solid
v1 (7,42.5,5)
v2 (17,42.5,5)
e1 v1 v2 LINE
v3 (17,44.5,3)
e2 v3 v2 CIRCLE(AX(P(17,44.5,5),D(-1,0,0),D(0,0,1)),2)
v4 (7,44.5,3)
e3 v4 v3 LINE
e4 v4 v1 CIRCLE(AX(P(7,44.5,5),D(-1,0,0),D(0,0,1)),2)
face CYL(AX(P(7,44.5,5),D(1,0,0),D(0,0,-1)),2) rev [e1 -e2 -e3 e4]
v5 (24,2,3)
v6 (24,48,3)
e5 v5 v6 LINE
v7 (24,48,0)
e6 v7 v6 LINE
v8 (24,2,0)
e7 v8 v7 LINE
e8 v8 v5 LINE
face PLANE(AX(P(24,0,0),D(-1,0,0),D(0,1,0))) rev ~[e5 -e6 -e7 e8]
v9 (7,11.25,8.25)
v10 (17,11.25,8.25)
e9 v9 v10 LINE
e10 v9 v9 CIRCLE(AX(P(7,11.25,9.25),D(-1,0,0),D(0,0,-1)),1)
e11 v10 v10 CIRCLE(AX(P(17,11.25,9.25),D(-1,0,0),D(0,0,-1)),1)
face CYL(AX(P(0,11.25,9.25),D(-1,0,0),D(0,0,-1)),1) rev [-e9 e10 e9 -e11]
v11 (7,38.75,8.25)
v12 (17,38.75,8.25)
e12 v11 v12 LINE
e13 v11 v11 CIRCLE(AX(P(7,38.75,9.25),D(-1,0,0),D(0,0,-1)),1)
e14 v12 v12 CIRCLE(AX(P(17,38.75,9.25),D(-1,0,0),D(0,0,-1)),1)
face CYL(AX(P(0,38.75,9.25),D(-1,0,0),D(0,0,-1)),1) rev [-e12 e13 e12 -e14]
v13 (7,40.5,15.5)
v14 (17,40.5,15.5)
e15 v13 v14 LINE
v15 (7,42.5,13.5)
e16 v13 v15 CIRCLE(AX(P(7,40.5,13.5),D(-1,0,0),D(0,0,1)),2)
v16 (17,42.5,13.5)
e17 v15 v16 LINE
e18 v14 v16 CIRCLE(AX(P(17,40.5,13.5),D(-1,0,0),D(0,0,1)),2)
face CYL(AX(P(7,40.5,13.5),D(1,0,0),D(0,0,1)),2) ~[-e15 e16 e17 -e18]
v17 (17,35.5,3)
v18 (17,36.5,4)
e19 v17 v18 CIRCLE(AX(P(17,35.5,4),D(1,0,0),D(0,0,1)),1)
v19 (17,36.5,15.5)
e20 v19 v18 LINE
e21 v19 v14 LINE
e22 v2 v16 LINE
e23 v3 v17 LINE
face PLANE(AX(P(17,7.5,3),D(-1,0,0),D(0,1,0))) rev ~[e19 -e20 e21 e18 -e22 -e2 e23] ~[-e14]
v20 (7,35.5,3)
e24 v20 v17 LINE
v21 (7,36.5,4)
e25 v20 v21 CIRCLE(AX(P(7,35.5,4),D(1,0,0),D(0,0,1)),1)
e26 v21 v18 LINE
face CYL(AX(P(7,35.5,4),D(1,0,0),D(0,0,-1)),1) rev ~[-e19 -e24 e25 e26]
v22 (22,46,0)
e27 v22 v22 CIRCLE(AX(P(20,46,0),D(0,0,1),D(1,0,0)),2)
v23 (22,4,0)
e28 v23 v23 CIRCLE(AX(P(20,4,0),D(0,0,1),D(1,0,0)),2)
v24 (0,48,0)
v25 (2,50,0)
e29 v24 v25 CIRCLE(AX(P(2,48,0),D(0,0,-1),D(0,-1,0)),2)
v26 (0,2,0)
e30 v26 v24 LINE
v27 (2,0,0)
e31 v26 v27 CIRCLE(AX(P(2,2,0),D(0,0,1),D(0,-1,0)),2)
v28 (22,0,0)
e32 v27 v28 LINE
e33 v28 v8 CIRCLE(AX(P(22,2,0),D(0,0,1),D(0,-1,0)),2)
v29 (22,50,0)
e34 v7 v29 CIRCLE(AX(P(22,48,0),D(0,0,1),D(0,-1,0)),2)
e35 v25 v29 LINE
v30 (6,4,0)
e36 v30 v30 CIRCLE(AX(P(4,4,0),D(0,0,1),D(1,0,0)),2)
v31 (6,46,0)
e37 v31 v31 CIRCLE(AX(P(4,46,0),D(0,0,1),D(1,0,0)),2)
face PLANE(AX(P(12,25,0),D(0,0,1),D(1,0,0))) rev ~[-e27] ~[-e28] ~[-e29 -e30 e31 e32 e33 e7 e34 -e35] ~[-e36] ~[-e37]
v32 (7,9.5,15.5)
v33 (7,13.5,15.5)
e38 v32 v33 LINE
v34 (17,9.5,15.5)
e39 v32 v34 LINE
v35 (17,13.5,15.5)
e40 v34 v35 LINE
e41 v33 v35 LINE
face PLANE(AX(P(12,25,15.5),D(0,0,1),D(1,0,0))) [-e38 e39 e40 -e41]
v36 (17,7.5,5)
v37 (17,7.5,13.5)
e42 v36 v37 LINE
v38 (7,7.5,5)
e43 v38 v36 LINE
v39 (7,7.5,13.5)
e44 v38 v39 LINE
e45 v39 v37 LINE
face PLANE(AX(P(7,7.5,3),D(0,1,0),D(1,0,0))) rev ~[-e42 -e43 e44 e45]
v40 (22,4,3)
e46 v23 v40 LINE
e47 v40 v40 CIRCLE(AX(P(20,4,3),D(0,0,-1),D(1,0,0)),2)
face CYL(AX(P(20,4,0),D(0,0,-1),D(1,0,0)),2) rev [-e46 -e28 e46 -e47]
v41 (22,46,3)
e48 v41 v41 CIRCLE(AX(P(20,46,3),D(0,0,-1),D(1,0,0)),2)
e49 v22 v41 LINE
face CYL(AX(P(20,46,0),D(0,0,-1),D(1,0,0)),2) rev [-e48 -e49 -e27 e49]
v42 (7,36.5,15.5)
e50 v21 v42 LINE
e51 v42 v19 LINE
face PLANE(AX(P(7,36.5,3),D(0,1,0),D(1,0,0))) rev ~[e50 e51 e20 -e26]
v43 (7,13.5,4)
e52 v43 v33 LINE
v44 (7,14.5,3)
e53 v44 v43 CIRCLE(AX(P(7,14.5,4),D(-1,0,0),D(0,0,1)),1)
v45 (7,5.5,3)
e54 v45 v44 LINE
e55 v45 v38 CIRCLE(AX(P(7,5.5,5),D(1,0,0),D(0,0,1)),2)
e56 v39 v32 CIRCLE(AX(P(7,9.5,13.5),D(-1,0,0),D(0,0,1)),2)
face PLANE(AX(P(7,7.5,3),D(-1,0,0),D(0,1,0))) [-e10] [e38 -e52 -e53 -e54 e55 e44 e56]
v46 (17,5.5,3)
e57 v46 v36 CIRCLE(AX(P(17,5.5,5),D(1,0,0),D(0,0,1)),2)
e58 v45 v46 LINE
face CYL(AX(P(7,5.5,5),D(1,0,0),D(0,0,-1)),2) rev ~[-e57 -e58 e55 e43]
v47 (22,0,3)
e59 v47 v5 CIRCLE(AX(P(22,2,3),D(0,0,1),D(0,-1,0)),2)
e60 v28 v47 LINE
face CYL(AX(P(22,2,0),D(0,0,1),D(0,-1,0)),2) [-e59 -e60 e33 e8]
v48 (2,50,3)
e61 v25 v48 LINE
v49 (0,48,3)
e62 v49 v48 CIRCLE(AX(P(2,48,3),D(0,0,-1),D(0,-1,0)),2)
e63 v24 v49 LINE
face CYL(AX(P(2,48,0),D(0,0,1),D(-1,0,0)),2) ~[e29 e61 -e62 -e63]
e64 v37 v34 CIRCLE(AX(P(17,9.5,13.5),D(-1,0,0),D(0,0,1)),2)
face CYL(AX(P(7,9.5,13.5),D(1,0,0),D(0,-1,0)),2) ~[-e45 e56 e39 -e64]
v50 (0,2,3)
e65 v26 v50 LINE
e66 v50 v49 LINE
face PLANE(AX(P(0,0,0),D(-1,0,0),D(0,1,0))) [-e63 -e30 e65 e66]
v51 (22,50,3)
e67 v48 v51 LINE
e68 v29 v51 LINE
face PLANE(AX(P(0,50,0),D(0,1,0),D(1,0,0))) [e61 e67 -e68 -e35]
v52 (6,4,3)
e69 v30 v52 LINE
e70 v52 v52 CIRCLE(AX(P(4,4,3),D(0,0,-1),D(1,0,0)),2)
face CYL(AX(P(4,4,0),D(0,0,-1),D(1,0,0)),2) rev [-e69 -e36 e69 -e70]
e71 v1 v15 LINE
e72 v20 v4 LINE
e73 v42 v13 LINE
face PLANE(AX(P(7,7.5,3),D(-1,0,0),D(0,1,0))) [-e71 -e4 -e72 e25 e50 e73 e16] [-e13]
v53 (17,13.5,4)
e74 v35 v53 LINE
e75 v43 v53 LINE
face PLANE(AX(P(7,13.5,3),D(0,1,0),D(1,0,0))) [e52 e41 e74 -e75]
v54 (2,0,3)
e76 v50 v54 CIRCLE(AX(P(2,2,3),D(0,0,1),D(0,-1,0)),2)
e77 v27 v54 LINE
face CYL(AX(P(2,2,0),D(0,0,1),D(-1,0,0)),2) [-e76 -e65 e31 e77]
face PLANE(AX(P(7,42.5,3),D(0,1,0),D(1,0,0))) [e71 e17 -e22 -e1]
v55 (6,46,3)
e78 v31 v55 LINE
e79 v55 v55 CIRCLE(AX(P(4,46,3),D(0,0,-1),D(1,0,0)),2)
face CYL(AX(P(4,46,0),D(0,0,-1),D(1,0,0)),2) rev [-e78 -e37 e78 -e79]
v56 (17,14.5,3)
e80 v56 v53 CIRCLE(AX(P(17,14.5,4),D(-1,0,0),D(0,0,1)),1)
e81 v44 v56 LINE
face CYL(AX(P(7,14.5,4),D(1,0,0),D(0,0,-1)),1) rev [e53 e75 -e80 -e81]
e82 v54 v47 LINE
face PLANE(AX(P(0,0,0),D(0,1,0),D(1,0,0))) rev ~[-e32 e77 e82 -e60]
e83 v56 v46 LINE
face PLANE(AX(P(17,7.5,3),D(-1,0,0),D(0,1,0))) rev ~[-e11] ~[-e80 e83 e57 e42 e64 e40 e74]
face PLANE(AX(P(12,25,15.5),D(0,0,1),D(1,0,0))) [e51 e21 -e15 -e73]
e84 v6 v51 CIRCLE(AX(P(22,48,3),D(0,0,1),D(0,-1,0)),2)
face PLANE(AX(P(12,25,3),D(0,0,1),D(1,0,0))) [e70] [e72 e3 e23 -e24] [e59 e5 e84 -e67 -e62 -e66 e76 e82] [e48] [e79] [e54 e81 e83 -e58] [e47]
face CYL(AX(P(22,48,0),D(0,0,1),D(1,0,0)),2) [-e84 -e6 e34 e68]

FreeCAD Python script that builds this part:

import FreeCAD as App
import Part
import Sketcher
from FreeCAD import Vector


def edges_at(feature, points):
    """Names of the edges that pass closest to the given points."""
    edges = feature.Shape.Edges
    near = lambda p: min(range(len(edges)), key=lambda i: edges[i].distToShape(Part.Vertex(*p))[0])
    return sorted({f"Edge{near(p) + 1}" for p in points})

doc = App.newDocument("Part")
body = doc.addObject("PartDesign::Body", "Body")

sketch1 = body.newObject("Sketcher::SketchObject", "Sketch")
sketch1.AttachmentSupport = (doc.getObject("YZ_Plane"), [""])
sketch1.MapMode = "FlatFace"
sketch1.addGeometry(Part.Circle(Vector(11.2, 9.2, 0), Vector(0, 0, 1), 1), False)
sketch1.addConstraint(Sketcher.Constraint("Diameter", 0, 2.0))
sketch1.addConstraint(Sketcher.Constraint("DistanceX", -1, 1, 0, 3, 11.25))
sketch1.addConstraint(Sketcher.Constraint("DistanceY", -1, 1, 0, 3, 9.25))
pad1 = body.newObject("PartDesign::Pad", "Pad")
pad1.Profile = sketch1
pad1.Length = 28
body2 = doc.addObject("PartDesign::Body", "Body001")

sketch2 = body2.newObject("Sketcher::SketchObject", "Sketch001")
sketch2.AttachmentSupport = (doc.getObject("XY_Plane001"), [""])
sketch2.MapMode = "FlatFace"
sketch2.addGeometry(Part.Circle(Vector(20, 4, 0), Vector(0, 0, 1), 2), False)
sketch2.addConstraint(Sketcher.Constraint("Diameter", 0, 4.0))
sketch2.addConstraint(Sketcher.Constraint("DistanceX", -1, 1, 0, 3, 20.0))
sketch2.addConstraint(Sketcher.Constraint("DistanceY", -1, 1, 0, 3, 4.0))
pad2 = body2.newObject("PartDesign::Pad", "Pad001")
pad2.Profile = sketch2
pad2.Length = 10
body3 = doc.addObject("PartDesign::Body", "Body002")

sketch3 = body3.newObject("Sketcher::SketchObject", "Sketch002")
sketch3.AttachmentSupport = (doc.getObject("XY_Plane002"), [""])
sketch3.MapMode = "FlatFace"
sketch3.addGeometry(Part.Circle(Vector(20, 46, 0), Vector(0, 0, 1), 2), False)
sketch3.addConstraint(Sketcher.Constraint("Diameter", 0, 4.0))
sketch3.addConstraint(Sketcher.Constraint("DistanceX", -1, 1, 0, 3, 20.0))
sketch3.addConstraint(Sketcher.Constraint("DistanceY", -1, 1, 0, 3, 46.0))
pad3 = body3.newObject("PartDesign::Pad", "Pad002")
pad3.Profile = sketch3
pad3.Length = 10
body4 = doc.addObject("PartDesign::Body", "Body003")

sketch4 = body4.newObject("Sketcher::SketchObject", "Sketch003")
sketch4.AttachmentSupport = (doc.getObject("XY_Plane003"), [""])
sketch4.MapMode = "FlatFace"
sketch4.addGeometry(Part.Circle(Vector(4, 46, 0), Vector(0, 0, 1), 2), False)
sketch4.addConstraint(Sketcher.Constraint("Diameter", 0, 4.0))
sketch4.addConstraint(Sketcher.Constraint("DistanceX", -1, 1, 0, 3, 4.0))
sketch4.addConstraint(Sketcher.Constraint("DistanceY", -1, 1, 0, 3, 46.0))
pad4 = body4.newObject("PartDesign::Pad", "Pad003")
pad4.Profile = sketch4
pad4.Length = 10
body5 = doc.addObject("PartDesign::Body", "Body004")

sketch5 = body5.newObject("Sketcher::SketchObject", "Sketch004")
sketch5.AttachmentSupport = (doc.getObject("YZ_Plane004"), [""])
sketch5.MapMode = "FlatFace"
sketch5.addGeometry(Part.Circle(Vector(38.8, 9.2, 0), Vector(0, 0, 1), 1), False)
sketch5.addConstraint(Sketcher.Constraint("Diameter", 0, 2.0))
sketch5.addConstraint(Sketcher.Constraint("DistanceX", -1, 1, 0, 3, 38.75))
sketch5.addConstraint(Sketcher.Constraint("DistanceY", -1, 1, 0, 3, 9.25))
pad5 = body5.newObject("PartDesign::Pad", "Pad004")
pad5.Profile = sketch5
pad5.Length = 28
body6 = doc.addObject("PartDesign::Body", "Body005")
body6.AllowCompound = True

sketch6 = body6.newObject("Sketcher::SketchObject", "Sketch005")
sketch6.AttachmentSupport = (doc.getObject("XY_Plane005"), [""])
sketch6.MapMode = "FlatFace"
sketch6.addGeometry(Part.Circle(Vector(4, 4, 0), Vector(0, 0, 1), 2), False)
sketch6.addConstraint(Sketcher.Constraint("Diameter", 0, 4.0))
sketch6.addConstraint(Sketcher.Constraint("DistanceX", -1, 1, 0, 3, 4.0))
sketch6.addConstraint(Sketcher.Constraint("DistanceY", -1, 1, 0, 3, 4.0))
pad6 = body6.newObject("PartDesign::Pad", "Pad005")
pad6.Profile = sketch6
pad6.Length = 10
doc.recompute()

boolean = body6.newObject("PartDesign::Boolean", "Boolean")
boolean.Type = "Fuse"
boolean.addObjects([body])
doc.recompute()

boolean2 = body6.newObject("PartDesign::Boolean", "Boolean001")
boolean2.Type = "Fuse"
boolean2.addObjects([body2])
doc.recompute()

boolean3 = body6.newObject("PartDesign::Boolean", "Boolean002")
boolean3.Type = "Fuse"
boolean3.addObjects([body3])
doc.recompute()

boolean4 = body6.newObject("PartDesign::Boolean", "Boolean003")
boolean4.Type = "Fuse"
boolean4.addObjects([body4])
doc.recompute()

boolean5 = body6.newObject("PartDesign::Boolean", "Boolean004")
boolean5.Type = "Fuse"
boolean5.addObjects([body5])
body7 = doc.addObject("PartDesign::Body", "Body006")

sketch7 = body7.newObject("Sketcher::SketchObject", "Sketch006")
sketch7.AttachmentSupport = (doc.getObject("XY_Plane006"), [""])
sketch7.MapMode = "FlatFace"
sketch7.AttachmentOffset = App.Placement(Vector(0, 0, 3), App.Rotation())
sketch7.addGeometry(Part.LineSegment(Vector(7, 36, 0), Vector(7, 14, 0)), False)
sketch7.addGeometry(Part.LineSegment(Vector(7, 14, 0), Vector(23, 14, 0)), False)
sketch7.addGeometry(Part.LineSegment(Vector(23, 14, 0), Vector(23, 36, 0)), False)
sketch7.addGeometry(Part.LineSegment(Vector(23, 36, 0), Vector(7, 36, 0)), False)
sketch7.addConstraint(Sketcher.Constraint("Coincident", 0, 2, 1, 1))
sketch7.addConstraint(Sketcher.Constraint("Coincident", 1, 2, 2, 1))
sketch7.addConstraint(Sketcher.Constraint("Coincident", 2, 2, 3, 1))
sketch7.addConstraint(Sketcher.Constraint("Coincident", 3, 2, 0, 1))
sketch7.addConstraint(Sketcher.Constraint("Vertical", 0))
sketch7.addConstraint(Sketcher.Constraint("Horizontal", 1))
sketch7.addConstraint(Sketcher.Constraint("Vertical", 2))
sketch7.addConstraint(Sketcher.Constraint("Horizontal", 3))
sketch7.addConstraint(Sketcher.Constraint("DistanceX", 1, 1, 1, 2, 16.0))
sketch7.addConstraint(Sketcher.Constraint("DistanceY", 0, 2, 0, 1, 23.0))
sketch7.addConstraint(Sketcher.Constraint("DistanceX", -1, 1, 0, 2, 7.0))
sketch7.addConstraint(Sketcher.Constraint("DistanceY", -1, 1, 0, 2, 13.5))
pad7 = body7.newObject("PartDesign::Pad", "Pad006")
pad7.Profile = sketch7
pad7.Length = 12.5
body8 = doc.addObject("PartDesign::Body", "Body007")
body8.AllowCompound = True

sketch8 = body8.newObject("Sketcher::SketchObject", "Sketch007")
sketch8.AttachmentSupport = (doc.getObject("XY_Plane007"), [""])
sketch8.MapMode = "FlatFace"
sketch8.AttachmentOffset = App.Placement(Vector(0, 0, 3), App.Rotation())
sketch8.addGeometry(Part.LineSegment(Vector(7, 42, 0), Vector(7, 8, 0)), False)
sketch8.addGeometry(Part.LineSegment(Vector(7, 8, 0), Vector(17, 8, 0)), False)
sketch8.addGeometry(Part.LineSegment(Vector(17, 8, 0), Vector(17, 42, 0)), False)
sketch8.addGeometry(Part.LineSegment(Vector(17, 42, 0), Vector(7, 42, 0)), False)
sketch8.addConstraint(Sketcher.Constraint("Coincident", 0, 2, 1, 1))
sketch8.addConstraint(Sketcher.Constraint("Coincident", 1, 2, 2, 1))
sketch8.addConstraint(Sketcher.Constraint("Coincident", 2, 2, 3, 1))
sketch8.addConstraint(Sketcher.Constraint("Coincident", 3, 2, 0, 1))
sketch8.addConstraint(Sketcher.Constraint("Vertical", 0))
sketch8.addConstraint(Sketcher.Constraint("Horizontal", 1))
sketch8.addConstraint(Sketcher.Constraint("Vertical", 2))
sketch8.addConstraint(Sketcher.Constraint("Horizontal", 3))
sketch8.addConstraint(Sketcher.Constraint("DistanceX", 1, 1, 1, 2, 10.0))
sketch8.addConstraint(Sketcher.Constraint("DistanceY", 0, 2, 0, 1, 35.0))
sketch8.addConstraint(Sketcher.Constraint("DistanceX", -1, 1, 0, 2, 7.0))
sketch8.addConstraint(Sketcher.Constraint("DistanceY", -1, 1, 0, 2, 7.5))
pad8 = body8.newObject("PartDesign::Pad", "Pad007")
pad8.Profile = sketch8
pad8.Length = 12.5
doc.recompute()

boolean6 = body8.newObject("PartDesign::Boolean", "Boolean005")
boolean6.Type = "Cut"
boolean6.addObjects([body7])
body9 = doc.addObject("PartDesign::Body", "Body008")

sketch9 = body9.newObject("Sketcher::SketchObject", "Sketch008")
sketch9.AttachmentSupport = (doc.getObject("XY_Plane008"), [""])
sketch9.MapMode = "FlatFace"
sketch9.addGeometry(Part.LineSegment(Vector(0, 50, 0), Vector(0, 0, 0)), False)
sketch9.addGeometry(Part.LineSegment(Vector(0, 0, 0), Vector(24, 0, 0)), False)
sketch9.addGeometry(Part.LineSegment(Vector(24, 0, 0), Vector(24, 50, 0)), False)
sketch9.addGeometry(Part.LineSegment(Vector(24, 50, 0), Vector(0, 50, 0)), False)
sketch9.addConstraint(Sketcher.Constraint("Coincident", 0, 2, 1, 1))
sketch9.addConstraint(Sketcher.Constraint("Coincident", 1, 2, 2, 1))
sketch9.addConstraint(Sketcher.Constraint("Coincident", 2, 2, 3, 1))
sketch9.addConstraint(Sketcher.Constraint("Coincident", 3, 2, 0, 1))
sketch9.addConstraint(Sketcher.Constraint("Vertical", 0))
sketch9.addConstraint(Sketcher.Constraint("Horizontal", 1))
sketch9.addConstraint(Sketcher.Constraint("Vertical", 2))
sketch9.addConstraint(Sketcher.Constraint("Horizontal", 3))
sketch9.addConstraint(Sketcher.Constraint("Coincident", 0, 2, -1, 1))
sketch9.addConstraint(Sketcher.Constraint("DistanceX", 1, 1, 1, 2, 24.0))
sketch9.addConstraint(Sketcher.Constraint("DistanceY", 0, 2, 0, 1, 50.0))
pad9 = body9.newObject("PartDesign::Pad", "Pad008")
pad9.Profile = sketch9
pad9.Length = 3
doc.recompute()

fillet = body9.newObject("PartDesign::Fillet", "Fillet")
fillet.Base = (pad9, edges_at(pad9, [
    (0, 0, 1.5),
    (0, 50, 1.5),
    (24, 0, 1.5),
    (24, 50, 1.5),
]))
fillet.Radius = 2
doc.recompute()

boolean7 = body9.newObject("PartDesign::Boolean", "Boolean006")
boolean7.Type = "Fuse"
boolean7.addObjects([body8])
doc.recompute()

boolean8 = body9.newObject("PartDesign::Boolean", "Boolean007")
boolean8.Type = "Cut"
boolean8.addObjects([body6])
doc.recompute()

fillet2 = body9.newObject("PartDesign::Fillet", "Fillet001")
fillet2.Base = (boolean8, edges_at(boolean8, [(12, 13.5, 3), (12, 36.5, 3)]))
fillet2.Radius = 1
doc.recompute()

fillet3 = body9.newObject("PartDesign::Fillet", "Fillet002")
fillet3.Base = (fillet2, edges_at(fillet2, [(12, 7.5, 3), (12, 42.5, 3)]))
fillet3.Radius = 2
doc.recompute()

fillet4 = body9.newObject("PartDesign::Fillet", "Fillet003")
fillet4.Base = (fillet3, edges_at(fillet3, [(12, 7.5, 15.5), (12, 42.5, 15.5)]))
fillet4.Radius = 2

doc.recompute()
